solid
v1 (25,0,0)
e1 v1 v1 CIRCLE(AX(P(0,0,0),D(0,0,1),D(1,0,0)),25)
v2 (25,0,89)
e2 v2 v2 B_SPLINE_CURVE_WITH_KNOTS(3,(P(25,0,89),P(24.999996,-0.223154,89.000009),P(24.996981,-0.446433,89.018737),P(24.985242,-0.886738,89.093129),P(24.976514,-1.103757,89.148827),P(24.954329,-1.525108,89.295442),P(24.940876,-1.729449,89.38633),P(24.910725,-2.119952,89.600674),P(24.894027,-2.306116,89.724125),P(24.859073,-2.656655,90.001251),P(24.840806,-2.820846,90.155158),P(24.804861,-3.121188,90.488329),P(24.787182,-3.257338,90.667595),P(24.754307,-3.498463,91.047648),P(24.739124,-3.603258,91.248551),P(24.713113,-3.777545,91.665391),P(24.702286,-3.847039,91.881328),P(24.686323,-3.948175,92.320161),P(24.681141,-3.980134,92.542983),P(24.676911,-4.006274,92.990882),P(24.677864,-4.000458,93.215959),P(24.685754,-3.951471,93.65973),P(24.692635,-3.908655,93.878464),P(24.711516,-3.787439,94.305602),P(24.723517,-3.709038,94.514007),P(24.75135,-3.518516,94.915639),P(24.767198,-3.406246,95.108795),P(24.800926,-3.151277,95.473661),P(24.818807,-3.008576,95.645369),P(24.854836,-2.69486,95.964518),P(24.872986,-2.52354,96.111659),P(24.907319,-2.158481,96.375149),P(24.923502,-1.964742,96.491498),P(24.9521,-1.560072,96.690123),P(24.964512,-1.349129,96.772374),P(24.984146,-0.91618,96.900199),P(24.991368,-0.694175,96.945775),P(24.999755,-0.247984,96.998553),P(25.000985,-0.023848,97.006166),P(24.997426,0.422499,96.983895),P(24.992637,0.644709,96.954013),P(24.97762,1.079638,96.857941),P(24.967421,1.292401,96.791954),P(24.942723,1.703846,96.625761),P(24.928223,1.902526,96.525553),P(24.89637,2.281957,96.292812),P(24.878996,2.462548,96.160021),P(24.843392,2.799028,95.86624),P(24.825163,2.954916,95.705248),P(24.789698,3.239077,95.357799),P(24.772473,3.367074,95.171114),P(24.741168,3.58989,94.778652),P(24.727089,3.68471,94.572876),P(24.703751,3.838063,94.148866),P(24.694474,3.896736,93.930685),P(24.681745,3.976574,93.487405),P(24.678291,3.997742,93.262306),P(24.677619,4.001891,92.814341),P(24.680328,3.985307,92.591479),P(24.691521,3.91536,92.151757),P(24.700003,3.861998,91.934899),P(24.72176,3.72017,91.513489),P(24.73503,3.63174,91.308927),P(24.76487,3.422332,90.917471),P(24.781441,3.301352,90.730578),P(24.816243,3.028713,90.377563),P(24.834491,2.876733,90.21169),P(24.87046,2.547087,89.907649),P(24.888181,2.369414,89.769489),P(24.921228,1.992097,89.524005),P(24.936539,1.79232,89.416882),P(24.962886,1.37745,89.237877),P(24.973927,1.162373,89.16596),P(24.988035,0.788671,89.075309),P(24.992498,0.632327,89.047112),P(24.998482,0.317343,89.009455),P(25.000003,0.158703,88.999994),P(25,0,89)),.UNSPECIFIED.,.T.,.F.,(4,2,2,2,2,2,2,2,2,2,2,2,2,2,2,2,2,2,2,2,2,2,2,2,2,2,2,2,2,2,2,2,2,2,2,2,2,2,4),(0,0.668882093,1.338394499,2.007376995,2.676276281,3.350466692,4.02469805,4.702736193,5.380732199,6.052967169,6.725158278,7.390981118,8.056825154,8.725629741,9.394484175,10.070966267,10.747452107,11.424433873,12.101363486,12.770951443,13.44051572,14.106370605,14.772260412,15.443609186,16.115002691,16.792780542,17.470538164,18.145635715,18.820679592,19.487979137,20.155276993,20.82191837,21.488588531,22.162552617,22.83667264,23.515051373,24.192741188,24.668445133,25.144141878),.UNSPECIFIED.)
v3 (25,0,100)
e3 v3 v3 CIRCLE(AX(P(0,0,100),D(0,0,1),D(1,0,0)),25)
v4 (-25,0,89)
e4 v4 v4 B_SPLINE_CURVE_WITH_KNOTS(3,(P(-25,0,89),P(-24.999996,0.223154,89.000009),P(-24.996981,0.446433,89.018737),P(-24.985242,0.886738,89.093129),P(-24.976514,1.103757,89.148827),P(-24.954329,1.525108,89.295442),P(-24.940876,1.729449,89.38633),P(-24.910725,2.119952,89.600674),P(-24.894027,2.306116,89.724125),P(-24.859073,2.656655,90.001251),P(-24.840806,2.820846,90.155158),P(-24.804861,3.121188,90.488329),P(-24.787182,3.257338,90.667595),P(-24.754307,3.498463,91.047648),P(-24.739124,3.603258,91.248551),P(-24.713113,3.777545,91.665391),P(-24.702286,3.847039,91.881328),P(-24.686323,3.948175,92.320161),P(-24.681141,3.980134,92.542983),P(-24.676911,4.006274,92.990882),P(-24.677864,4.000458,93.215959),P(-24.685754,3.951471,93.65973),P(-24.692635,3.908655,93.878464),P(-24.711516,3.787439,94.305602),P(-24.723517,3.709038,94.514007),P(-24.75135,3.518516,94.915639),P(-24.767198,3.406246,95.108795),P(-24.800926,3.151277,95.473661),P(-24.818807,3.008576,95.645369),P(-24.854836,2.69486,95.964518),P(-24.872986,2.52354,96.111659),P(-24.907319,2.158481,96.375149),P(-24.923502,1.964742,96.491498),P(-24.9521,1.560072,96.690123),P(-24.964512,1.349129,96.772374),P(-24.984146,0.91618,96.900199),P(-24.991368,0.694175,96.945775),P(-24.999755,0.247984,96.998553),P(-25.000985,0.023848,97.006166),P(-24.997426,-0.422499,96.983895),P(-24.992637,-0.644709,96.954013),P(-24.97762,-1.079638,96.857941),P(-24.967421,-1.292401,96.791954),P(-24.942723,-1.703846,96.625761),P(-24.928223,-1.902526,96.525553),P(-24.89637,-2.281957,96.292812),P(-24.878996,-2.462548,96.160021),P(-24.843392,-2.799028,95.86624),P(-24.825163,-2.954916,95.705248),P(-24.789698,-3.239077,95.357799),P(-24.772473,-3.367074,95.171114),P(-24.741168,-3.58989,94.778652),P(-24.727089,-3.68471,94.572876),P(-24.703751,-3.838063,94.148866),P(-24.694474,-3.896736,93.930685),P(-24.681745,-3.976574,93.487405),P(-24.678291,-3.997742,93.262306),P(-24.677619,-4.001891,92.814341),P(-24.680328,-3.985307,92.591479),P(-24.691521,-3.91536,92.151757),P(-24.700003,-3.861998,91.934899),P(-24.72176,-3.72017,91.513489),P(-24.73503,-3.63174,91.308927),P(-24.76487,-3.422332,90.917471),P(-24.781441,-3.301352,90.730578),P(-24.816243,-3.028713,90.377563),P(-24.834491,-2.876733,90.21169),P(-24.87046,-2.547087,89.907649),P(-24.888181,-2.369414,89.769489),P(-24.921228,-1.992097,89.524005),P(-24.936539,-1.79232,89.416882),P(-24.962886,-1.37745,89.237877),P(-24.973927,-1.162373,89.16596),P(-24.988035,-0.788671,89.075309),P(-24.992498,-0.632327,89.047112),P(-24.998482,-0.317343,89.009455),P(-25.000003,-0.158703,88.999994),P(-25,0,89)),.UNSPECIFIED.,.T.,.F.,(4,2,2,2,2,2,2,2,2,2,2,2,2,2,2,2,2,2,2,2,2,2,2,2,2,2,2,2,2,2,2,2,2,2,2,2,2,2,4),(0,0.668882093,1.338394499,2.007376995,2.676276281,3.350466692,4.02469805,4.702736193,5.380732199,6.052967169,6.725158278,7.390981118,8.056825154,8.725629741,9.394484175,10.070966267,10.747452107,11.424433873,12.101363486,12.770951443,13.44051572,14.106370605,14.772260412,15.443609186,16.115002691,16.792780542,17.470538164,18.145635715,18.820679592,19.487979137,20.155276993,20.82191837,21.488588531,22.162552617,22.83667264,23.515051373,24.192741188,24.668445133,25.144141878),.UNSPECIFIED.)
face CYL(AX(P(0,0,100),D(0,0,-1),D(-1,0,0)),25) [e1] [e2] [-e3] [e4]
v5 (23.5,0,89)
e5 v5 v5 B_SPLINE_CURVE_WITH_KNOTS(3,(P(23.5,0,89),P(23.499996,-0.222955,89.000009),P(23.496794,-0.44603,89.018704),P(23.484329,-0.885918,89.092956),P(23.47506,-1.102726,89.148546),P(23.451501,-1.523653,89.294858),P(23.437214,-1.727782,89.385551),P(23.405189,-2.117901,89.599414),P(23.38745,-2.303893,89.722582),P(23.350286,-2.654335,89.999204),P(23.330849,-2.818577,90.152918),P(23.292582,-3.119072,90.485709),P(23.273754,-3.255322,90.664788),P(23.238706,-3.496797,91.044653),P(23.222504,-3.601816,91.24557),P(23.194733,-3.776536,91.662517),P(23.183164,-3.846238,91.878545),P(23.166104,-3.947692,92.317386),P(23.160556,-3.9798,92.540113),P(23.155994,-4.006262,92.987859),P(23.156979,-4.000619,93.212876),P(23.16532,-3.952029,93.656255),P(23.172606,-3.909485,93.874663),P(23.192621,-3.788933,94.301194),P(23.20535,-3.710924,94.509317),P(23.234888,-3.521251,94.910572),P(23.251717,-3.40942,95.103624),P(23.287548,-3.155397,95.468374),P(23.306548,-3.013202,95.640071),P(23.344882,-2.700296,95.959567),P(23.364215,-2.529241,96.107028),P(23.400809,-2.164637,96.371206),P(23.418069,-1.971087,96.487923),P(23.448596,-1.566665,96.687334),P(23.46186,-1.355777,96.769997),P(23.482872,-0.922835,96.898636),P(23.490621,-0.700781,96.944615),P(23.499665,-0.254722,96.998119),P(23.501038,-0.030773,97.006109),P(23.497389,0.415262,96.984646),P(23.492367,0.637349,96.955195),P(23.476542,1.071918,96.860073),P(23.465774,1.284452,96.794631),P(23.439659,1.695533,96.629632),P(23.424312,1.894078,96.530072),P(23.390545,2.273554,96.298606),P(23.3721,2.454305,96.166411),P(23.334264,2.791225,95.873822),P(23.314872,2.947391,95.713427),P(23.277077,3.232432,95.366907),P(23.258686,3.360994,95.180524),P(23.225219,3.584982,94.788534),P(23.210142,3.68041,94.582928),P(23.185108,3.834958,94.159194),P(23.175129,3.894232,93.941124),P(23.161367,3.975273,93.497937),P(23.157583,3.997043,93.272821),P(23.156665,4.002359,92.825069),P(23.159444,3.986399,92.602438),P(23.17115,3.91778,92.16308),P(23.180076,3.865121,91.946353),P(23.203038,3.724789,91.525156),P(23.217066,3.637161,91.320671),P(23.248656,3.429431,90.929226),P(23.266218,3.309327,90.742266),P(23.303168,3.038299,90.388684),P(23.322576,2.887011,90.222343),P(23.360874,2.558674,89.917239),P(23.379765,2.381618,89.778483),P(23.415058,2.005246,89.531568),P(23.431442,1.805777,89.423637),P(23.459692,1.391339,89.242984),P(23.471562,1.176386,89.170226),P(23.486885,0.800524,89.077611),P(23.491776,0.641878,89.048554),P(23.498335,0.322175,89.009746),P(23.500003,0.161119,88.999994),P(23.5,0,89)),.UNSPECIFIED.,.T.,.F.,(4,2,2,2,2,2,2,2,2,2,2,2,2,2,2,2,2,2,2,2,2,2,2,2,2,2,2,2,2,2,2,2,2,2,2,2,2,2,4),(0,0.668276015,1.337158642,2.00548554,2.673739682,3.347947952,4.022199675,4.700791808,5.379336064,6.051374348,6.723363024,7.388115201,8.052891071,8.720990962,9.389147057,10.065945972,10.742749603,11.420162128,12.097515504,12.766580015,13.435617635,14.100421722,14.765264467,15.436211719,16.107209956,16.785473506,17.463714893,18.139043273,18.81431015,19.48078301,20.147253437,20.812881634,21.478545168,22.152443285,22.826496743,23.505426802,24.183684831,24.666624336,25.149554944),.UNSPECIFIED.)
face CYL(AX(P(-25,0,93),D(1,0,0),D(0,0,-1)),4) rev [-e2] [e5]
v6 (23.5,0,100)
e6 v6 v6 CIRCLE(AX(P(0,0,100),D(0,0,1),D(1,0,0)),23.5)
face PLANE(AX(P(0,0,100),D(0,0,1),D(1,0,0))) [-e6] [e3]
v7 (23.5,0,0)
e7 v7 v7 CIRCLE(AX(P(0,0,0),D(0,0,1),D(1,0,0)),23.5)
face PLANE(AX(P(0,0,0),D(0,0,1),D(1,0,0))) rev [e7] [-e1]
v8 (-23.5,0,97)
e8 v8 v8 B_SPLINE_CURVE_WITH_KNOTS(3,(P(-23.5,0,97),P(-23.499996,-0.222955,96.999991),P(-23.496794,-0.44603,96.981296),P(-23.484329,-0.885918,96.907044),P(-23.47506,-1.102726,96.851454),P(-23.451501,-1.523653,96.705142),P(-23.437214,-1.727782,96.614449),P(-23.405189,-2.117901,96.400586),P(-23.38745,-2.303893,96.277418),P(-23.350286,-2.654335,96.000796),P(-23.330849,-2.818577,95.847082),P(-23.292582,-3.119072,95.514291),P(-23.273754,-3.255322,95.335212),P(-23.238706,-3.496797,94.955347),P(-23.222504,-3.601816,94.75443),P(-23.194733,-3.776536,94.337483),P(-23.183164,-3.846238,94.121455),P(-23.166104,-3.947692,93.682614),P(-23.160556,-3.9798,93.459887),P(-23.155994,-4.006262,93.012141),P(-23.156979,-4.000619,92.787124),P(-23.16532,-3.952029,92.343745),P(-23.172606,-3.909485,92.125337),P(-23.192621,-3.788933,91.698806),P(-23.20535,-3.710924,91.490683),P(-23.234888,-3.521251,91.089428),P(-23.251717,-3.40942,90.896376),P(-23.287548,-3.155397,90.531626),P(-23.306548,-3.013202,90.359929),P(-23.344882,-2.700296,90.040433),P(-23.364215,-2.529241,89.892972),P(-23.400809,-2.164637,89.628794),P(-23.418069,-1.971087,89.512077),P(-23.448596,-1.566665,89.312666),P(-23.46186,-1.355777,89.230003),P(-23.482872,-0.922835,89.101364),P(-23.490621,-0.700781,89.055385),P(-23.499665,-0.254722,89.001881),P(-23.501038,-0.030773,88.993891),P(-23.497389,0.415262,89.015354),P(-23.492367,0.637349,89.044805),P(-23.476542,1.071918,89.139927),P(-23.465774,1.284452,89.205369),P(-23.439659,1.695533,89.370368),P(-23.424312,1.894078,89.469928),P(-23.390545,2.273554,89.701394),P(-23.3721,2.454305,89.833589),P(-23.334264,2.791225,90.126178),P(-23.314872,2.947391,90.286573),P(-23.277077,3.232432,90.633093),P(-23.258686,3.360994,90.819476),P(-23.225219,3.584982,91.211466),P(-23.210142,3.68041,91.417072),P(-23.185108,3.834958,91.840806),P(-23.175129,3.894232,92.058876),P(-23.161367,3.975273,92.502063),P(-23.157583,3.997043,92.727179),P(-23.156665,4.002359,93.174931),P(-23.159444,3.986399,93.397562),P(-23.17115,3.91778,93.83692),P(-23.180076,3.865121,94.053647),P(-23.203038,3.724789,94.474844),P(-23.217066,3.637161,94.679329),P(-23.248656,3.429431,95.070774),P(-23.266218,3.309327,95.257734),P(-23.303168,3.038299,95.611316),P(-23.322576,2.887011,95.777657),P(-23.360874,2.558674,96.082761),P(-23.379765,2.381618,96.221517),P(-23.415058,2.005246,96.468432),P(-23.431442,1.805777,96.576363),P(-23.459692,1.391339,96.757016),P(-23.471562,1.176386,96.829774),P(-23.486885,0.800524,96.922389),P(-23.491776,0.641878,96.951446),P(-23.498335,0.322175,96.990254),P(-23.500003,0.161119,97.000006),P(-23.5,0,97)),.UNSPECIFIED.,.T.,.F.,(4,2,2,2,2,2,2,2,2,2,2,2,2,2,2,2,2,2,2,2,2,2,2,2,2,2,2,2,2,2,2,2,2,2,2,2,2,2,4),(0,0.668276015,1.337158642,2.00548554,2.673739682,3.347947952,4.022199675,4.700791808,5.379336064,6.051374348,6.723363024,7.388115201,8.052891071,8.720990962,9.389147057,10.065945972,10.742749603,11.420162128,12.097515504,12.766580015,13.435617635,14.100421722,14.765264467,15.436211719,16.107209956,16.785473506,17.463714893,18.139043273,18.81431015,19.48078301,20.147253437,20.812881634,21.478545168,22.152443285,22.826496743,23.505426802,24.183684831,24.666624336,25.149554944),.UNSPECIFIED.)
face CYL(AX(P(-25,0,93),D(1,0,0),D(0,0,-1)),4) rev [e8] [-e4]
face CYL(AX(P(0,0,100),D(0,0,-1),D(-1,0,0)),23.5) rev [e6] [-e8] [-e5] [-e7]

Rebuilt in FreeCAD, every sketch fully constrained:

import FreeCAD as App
import Part
import Sketcher
from FreeCAD import Vector
Q = App.Units.Quantity

doc = App.newDocument("Part")
body = doc.addObject("PartDesign::Body", "Body")

# Sketch on XY plane
sketch1 = body.newObject("Sketcher::SketchObject", "Sketch")
sketch1.AttachmentSupport = (doc.getObject("XY_Plane"), [""])
sketch1.MapMode = "FlatFace"
sketch1.addGeometry(Part.Circle(Vector(0, 0, 0), Vector(0, 0, 1), 25), False)
sketch1.addGeometry(Part.Circle(Vector(0, 0, 0), Vector(0, 0, 1), 24), False)
sketch1.addConstraint(Sketcher.Constraint("Coincident", 0, 3, -1, 1))
sketch1.addConstraint(Sketcher.Constraint("Coincident", 1, 3, -1, 1))
sketch1.addConstraint(Sketcher.Constraint("Diameter", 0, Q("50 mm")))
sketch1.addConstraint(Sketcher.Constraint("Diameter", 1, Q("47 mm")))
pad1 = body.newObject("PartDesign::Pad", "Pad")
pad1.Profile = sketch1
pad1.Length = 100

# Sketch on YZ plane
sketch2 = body.newObject("Sketcher::SketchObject", "Sketch001")
sketch2.AttachmentSupport = (doc.getObject("YZ_Plane"), [""])
sketch2.MapMode = "FlatFace"
sketch2.addGeometry(Part.Circle(Vector(0, 93, 0), Vector(0, 0, 1), 4), False)
sketch2.addConstraint(Sketcher.Constraint("PointOnObject", 0, 3, -2))
sketch2.addConstraint(Sketcher.Constraint("Diameter", 0, Q("8 mm")))
sketch2.addConstraint(Sketcher.Constraint("DistanceY", -1, 1, 0, 3, Q("93 mm")))
pocket1 = body.newObject("PartDesign::Pocket", "Pocket")
pocket1.Profile = sketch2
pocket1.Type = "ThroughAll"
pocket1.Midplane = True

doc.recompute()
